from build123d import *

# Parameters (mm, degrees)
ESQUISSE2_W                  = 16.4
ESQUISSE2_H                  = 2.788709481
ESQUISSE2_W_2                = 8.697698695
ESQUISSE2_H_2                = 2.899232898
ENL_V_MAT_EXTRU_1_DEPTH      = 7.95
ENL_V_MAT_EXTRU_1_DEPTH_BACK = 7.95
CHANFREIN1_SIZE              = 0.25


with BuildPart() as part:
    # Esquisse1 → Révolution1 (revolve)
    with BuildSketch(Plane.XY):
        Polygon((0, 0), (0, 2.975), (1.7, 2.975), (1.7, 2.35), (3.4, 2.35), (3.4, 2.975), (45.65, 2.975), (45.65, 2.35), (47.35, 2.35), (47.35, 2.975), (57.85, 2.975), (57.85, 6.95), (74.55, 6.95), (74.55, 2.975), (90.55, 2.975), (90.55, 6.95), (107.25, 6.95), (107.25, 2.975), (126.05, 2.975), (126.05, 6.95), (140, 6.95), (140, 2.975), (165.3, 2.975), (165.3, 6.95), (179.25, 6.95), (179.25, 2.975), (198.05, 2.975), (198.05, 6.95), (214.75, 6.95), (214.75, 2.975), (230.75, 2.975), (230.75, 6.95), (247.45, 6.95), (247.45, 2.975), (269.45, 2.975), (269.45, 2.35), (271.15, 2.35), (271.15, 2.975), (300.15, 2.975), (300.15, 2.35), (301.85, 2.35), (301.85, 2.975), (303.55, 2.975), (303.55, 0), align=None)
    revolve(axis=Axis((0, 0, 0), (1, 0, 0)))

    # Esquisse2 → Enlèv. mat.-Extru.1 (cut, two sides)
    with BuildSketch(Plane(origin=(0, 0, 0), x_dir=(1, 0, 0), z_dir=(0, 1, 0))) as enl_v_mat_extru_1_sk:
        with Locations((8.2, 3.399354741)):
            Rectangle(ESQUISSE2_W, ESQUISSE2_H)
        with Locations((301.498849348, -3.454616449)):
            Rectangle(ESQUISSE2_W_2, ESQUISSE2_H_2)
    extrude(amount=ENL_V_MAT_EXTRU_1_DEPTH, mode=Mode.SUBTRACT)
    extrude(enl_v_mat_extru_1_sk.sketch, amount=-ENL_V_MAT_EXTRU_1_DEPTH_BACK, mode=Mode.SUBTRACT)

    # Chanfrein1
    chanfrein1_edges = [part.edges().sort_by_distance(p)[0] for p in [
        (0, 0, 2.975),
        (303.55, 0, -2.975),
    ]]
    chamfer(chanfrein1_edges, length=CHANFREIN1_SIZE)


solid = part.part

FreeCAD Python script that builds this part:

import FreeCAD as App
import Part
import Sketcher
Q = App.Units.Quantity


def edges_at(feature, points):
    """Names of the edges that pass closest to the given points."""
    edges = feature.Shape.Edges
    near = lambda p: min(range(len(edges)), key=lambda i: edges[i].distToShape(Part.Vertex(*p))[0])
    return sorted({f"Edge{near(p) + 1}" for p in points})


def add_polygon(sketch, points):
    """Adds a closed chain of lines whose ends are joined by coincident constraints."""
    first, n = sketch.GeometryCount, len(points)
    for a, b in zip(points, points[1:] + points[:1]):
        sketch.addGeometry(Part.LineSegment(App.Vector(*a, 0), App.Vector(*b, 0)), False)
    for i in range(n):
        sketch.addConstraint(Sketcher.Constraint("Coincident", first + i, 2, first + (i + 1) % n, 1))

doc = App.newDocument("Part")
body = doc.addObject("PartDesign::Body", "Body")

# Sketch on XY plane
sketch1 = doc.addObject("Sketcher::SketchObject", "Sketch")
body.addObject(sketch1)
sketch1.AttachmentSupport = (doc.XY_Plane, [""])
sketch1.MapMode = "FlatFace"
add_polygon(sketch1, [(0, 3), (0, 0), (303.6, 0), (303.6, 3), (301.9, 3), (301.9, 2.4), (300.1, 2.4), (300.1, 3), (271.1, 3), (271.1, 2.4), (269.4, 2.4), (269.4, 3), (247.4, 3), (247.4, 7), (230.8, 7), (230.8, 3), (214.8, 3), (214.8, 7), (198.1, 7), (198.1, 3), (179.2, 3), (179.2, 7), (165.3, 7), (165.3, 3), (140, 3), (140, 7), (126, 7), (126, 3), (107.2, 3), (107.2, 7), (90.5, 7), (90.5, 3), (74.5, 3), (74.5, 7), (57.9, 7), (57.9, 3), (47.4, 3), (47.4, 2.4), (45.6, 2.4), (45.6, 3), (3.4, 3), (3.4, 2.4), (1.7, 2.4), (1.7, 3)])  # lines 0-43
sketch1.addConstraint([
    Sketcher.Constraint("Vertical", 0),
    Sketcher.Constraint("Horizontal", 1),
    Sketcher.Constraint("Vertical", 2),
    Sketcher.Constraint("Horizontal", 3),
    Sketcher.Constraint("Vertical", 4),
    Sketcher.Constraint("Horizontal", 5),
    Sketcher.Constraint("Vertical", 6),
    Sketcher.Constraint("Horizontal", 7),
    Sketcher.Constraint("Vertical", 8),
    Sketcher.Constraint("Horizontal", 9),
    Sketcher.Constraint("Vertical", 10),
    Sketcher.Constraint("Horizontal", 11),
    Sketcher.Constraint("Vertical", 12),
    Sketcher.Constraint("Horizontal", 13),
    Sketcher.Constraint("Vertical", 14),
    Sketcher.Constraint("Horizontal", 15),
    Sketcher.Constraint("Vertical", 16),
    Sketcher.Constraint("Horizontal", 17),
    Sketcher.Constraint("Vertical", 18),
    Sketcher.Constraint("Horizontal", 19),
    Sketcher.Constraint("Vertical", 20),
    Sketcher.Constraint("Horizontal", 21),
    Sketcher.Constraint("Vertical", 22),
    Sketcher.Constraint("Horizontal", 23),
    Sketcher.Constraint("Vertical", 24),
    Sketcher.Constraint("Horizontal", 25),
    Sketcher.Constraint("Vertical", 26),
    Sketcher.Constraint("Horizontal", 27),
    Sketcher.Constraint("Vertical", 28),
    Sketcher.Constraint("Horizontal", 29),
    Sketcher.Constraint("Vertical", 30),
    Sketcher.Constraint("Horizontal", 31),
    Sketcher.Constraint("Vertical", 32),
    Sketcher.Constraint("Horizontal", 33),
    Sketcher.Constraint("Vertical", 34),
    Sketcher.Constraint("Horizontal", 35),
    Sketcher.Constraint("Vertical", 36),
    Sketcher.Constraint("Horizontal", 37),
    Sketcher.Constraint("Vertical", 38),
    Sketcher.Constraint("Horizontal", 39),
    Sketcher.Constraint("Vertical", 40),
    Sketcher.Constraint("Horizontal", 41),
    Sketcher.Constraint("Vertical", 42),
    Sketcher.Constraint("Horizontal", 43),
    Sketcher.Constraint("Coincident", 0, 2, -1, 1),
    Sketcher.Constraint("Horizontal", 3, 2, 6, 2),
    Sketcher.Constraint("Horizontal", 5, 2, 8, 2),
    Sketcher.Constraint("Horizontal", 7, 2, 10, 2),
    Sketcher.Constraint("Horizontal", 11, 2, 14, 2),
    Sketcher.Constraint("Horizontal", 13, 2, 16, 2),
    Sketcher.Constraint("Horizontal", 15, 2, 18, 2),
    Sketcher.Constraint("Horizontal", 17, 2, 20, 2),
    Sketcher.Constraint("Horizontal", 19, 2, 22, 2),
    Sketcher.Constraint("Horizontal", 21, 2, 24, 2),
    Sketcher.Constraint("Horizontal", 23, 2, 26, 2),
    Sketcher.Constraint("Horizontal", 25, 2, 28, 2),
    Sketcher.Constraint("Horizontal", 27, 2, 30, 2),
    Sketcher.Constraint("Horizontal", 29, 2, 32, 2),
    Sketcher.Constraint("Horizontal", 31, 2, 34, 2),
    Sketcher.Constraint("Horizontal", 9, 2, 36, 2),
    Sketcher.Constraint("Horizontal", 35, 2, 38, 2),
    Sketcher.Constraint("Horizontal", 37, 2, 40, 2),
    Sketcher.Constraint("Horizontal", 39, 2, 42, 2),
    Sketcher.Constraint("Equal", 3, 5),
    Sketcher.Constraint("Equal", 5, 9),
    Sketcher.Constraint("Equal", 13, 17),
    Sketcher.Constraint("Equal", 21, 25),
    Sketcher.Constraint("Equal", 19, 27),
    Sketcher.Constraint("Equal", 17, 29),
    Sketcher.Constraint("Equal", 15, 31),
    Sketcher.Constraint("Equal", 29, 33),
    Sketcher.Constraint("Equal", 9, 37),
    Sketcher.Constraint("Equal", 37, 41),
    Sketcher.Constraint("Equal", 41, 43),
    Sketcher.Constraint("DistanceX", 7, 2, 7, 1, Q("29 mm")),
    Sketcher.Constraint("DistanceX", 11, 2, 11, 1, Q("22 mm")),
    Sketcher.Constraint("DistanceX", 15, 2, 15, 1, Q("16 mm")),
    Sketcher.Constraint("DistanceX", 3, 2, 3, 1, Q("1.7 mm")),
    Sketcher.Constraint("DistanceX", 13, 2, 13, 1, Q("16.7 mm")),
    Sketcher.Constraint("DistanceX", 19, 2, 19, 1, Q("18.8 mm")),
    Sketcher.Constraint("DistanceX", 23, 2, 23, 1, Q("25.3 mm")),
    Sketcher.Constraint("DistanceX", 35, 2, 35, 1, Q("10.5 mm")),
    Sketcher.Constraint("DistanceX", -1, 1, 23, 2, Q("140 mm")),
    Sketcher.Constraint("DistanceX", 1, 1, 1, 2, Q("303.55 mm")),
    Sketcher.Constraint("DistanceY", 9, 2, 12, 2, Q("4.6 mm")),
    Sketcher.Constraint("DistanceY", 0, 2, 0, 1, Q("2.975 mm")),
    Sketcher.Constraint("DistanceY", 4, 2, 4, 1, Q("0.625 mm")),
])
revolution = doc.addObject("PartDesign::Revolution", "Revolution")
body.addObject(revolution)
revolution.Profile = sketch1
revolution.ReferenceAxis = (sketch1, ["H_Axis"])
revolution.Angle = 360

# Sketch on XZ plane
sketch2 = doc.addObject("Sketcher::SketchObject", "Sketch001")
body.addObject(sketch2)
sketch2.AttachmentSupport = (doc.XZ_Plane, [""])
sketch2.MapMode = "FlatFace"
add_polygon(sketch2, [(0, -4.8), (0, -2), (16.4, -2), (16.4, -4.8)])  # lines 0-3
add_polygon(sketch2, [(297.2, 2), (297.2, 4.9), (305.8, 4.9), (305.8, 2)])  # lines 4-7
sketch2.addConstraint([
    Sketcher.Constraint("Vertical", 0),
    Sketcher.Constraint("Horizontal", 1),
    Sketcher.Constraint("Vertical", 2),
    Sketcher.Constraint("Horizontal", 3),
    Sketcher.Constraint("Vertical", 4),
    Sketcher.Constraint("Horizontal", 5),
    Sketcher.Constraint("Vertical", 6),
    Sketcher.Constraint("Horizontal", 7),
    Sketcher.Constraint("PointOnObject", 0, 2, -2),
    Sketcher.Constraint("DistanceX", 1, 1, 1, 2, Q("16.4 mm")),
    Sketcher.Constraint("DistanceX", -1, 1, 4, 2, Q("297.15 mm")),
    Sketcher.Constraint("DistanceY", 1, 2, 6, 2, Q("4.01 mm")),
    Sketcher.Constraint("DistanceX", 5, 1, 5, 2, Q("8.697699 mm")),
    Sketcher.Constraint("DistanceY", 0, 2, -1, 1, Q("2.005 mm")),
    Sketcher.Constraint("DistanceY", 0, 1, 0, 2, Q("2.788709 mm")),
    Sketcher.Constraint("DistanceY", 4, 1, 4, 2, Q("2.899233 mm")),
])
pocket1 = doc.addObject("PartDesign::Pocket", "Pocket")
body.addObject(pocket1)
pocket1.Profile = sketch2
pocket1.Type = "ThroughAll"
pocket1.Midplane = True
doc.recompute()

chamfer = doc.addObject("PartDesign::Chamfer", "Chamfer")
body.addObject(chamfer)
chamfer.Base = (pocket1, edges_at(pocket1, [(0, 0, 2.975), (303.55, 0, -2.975)]))
chamfer.Size = 0.25

doc.recompute()
